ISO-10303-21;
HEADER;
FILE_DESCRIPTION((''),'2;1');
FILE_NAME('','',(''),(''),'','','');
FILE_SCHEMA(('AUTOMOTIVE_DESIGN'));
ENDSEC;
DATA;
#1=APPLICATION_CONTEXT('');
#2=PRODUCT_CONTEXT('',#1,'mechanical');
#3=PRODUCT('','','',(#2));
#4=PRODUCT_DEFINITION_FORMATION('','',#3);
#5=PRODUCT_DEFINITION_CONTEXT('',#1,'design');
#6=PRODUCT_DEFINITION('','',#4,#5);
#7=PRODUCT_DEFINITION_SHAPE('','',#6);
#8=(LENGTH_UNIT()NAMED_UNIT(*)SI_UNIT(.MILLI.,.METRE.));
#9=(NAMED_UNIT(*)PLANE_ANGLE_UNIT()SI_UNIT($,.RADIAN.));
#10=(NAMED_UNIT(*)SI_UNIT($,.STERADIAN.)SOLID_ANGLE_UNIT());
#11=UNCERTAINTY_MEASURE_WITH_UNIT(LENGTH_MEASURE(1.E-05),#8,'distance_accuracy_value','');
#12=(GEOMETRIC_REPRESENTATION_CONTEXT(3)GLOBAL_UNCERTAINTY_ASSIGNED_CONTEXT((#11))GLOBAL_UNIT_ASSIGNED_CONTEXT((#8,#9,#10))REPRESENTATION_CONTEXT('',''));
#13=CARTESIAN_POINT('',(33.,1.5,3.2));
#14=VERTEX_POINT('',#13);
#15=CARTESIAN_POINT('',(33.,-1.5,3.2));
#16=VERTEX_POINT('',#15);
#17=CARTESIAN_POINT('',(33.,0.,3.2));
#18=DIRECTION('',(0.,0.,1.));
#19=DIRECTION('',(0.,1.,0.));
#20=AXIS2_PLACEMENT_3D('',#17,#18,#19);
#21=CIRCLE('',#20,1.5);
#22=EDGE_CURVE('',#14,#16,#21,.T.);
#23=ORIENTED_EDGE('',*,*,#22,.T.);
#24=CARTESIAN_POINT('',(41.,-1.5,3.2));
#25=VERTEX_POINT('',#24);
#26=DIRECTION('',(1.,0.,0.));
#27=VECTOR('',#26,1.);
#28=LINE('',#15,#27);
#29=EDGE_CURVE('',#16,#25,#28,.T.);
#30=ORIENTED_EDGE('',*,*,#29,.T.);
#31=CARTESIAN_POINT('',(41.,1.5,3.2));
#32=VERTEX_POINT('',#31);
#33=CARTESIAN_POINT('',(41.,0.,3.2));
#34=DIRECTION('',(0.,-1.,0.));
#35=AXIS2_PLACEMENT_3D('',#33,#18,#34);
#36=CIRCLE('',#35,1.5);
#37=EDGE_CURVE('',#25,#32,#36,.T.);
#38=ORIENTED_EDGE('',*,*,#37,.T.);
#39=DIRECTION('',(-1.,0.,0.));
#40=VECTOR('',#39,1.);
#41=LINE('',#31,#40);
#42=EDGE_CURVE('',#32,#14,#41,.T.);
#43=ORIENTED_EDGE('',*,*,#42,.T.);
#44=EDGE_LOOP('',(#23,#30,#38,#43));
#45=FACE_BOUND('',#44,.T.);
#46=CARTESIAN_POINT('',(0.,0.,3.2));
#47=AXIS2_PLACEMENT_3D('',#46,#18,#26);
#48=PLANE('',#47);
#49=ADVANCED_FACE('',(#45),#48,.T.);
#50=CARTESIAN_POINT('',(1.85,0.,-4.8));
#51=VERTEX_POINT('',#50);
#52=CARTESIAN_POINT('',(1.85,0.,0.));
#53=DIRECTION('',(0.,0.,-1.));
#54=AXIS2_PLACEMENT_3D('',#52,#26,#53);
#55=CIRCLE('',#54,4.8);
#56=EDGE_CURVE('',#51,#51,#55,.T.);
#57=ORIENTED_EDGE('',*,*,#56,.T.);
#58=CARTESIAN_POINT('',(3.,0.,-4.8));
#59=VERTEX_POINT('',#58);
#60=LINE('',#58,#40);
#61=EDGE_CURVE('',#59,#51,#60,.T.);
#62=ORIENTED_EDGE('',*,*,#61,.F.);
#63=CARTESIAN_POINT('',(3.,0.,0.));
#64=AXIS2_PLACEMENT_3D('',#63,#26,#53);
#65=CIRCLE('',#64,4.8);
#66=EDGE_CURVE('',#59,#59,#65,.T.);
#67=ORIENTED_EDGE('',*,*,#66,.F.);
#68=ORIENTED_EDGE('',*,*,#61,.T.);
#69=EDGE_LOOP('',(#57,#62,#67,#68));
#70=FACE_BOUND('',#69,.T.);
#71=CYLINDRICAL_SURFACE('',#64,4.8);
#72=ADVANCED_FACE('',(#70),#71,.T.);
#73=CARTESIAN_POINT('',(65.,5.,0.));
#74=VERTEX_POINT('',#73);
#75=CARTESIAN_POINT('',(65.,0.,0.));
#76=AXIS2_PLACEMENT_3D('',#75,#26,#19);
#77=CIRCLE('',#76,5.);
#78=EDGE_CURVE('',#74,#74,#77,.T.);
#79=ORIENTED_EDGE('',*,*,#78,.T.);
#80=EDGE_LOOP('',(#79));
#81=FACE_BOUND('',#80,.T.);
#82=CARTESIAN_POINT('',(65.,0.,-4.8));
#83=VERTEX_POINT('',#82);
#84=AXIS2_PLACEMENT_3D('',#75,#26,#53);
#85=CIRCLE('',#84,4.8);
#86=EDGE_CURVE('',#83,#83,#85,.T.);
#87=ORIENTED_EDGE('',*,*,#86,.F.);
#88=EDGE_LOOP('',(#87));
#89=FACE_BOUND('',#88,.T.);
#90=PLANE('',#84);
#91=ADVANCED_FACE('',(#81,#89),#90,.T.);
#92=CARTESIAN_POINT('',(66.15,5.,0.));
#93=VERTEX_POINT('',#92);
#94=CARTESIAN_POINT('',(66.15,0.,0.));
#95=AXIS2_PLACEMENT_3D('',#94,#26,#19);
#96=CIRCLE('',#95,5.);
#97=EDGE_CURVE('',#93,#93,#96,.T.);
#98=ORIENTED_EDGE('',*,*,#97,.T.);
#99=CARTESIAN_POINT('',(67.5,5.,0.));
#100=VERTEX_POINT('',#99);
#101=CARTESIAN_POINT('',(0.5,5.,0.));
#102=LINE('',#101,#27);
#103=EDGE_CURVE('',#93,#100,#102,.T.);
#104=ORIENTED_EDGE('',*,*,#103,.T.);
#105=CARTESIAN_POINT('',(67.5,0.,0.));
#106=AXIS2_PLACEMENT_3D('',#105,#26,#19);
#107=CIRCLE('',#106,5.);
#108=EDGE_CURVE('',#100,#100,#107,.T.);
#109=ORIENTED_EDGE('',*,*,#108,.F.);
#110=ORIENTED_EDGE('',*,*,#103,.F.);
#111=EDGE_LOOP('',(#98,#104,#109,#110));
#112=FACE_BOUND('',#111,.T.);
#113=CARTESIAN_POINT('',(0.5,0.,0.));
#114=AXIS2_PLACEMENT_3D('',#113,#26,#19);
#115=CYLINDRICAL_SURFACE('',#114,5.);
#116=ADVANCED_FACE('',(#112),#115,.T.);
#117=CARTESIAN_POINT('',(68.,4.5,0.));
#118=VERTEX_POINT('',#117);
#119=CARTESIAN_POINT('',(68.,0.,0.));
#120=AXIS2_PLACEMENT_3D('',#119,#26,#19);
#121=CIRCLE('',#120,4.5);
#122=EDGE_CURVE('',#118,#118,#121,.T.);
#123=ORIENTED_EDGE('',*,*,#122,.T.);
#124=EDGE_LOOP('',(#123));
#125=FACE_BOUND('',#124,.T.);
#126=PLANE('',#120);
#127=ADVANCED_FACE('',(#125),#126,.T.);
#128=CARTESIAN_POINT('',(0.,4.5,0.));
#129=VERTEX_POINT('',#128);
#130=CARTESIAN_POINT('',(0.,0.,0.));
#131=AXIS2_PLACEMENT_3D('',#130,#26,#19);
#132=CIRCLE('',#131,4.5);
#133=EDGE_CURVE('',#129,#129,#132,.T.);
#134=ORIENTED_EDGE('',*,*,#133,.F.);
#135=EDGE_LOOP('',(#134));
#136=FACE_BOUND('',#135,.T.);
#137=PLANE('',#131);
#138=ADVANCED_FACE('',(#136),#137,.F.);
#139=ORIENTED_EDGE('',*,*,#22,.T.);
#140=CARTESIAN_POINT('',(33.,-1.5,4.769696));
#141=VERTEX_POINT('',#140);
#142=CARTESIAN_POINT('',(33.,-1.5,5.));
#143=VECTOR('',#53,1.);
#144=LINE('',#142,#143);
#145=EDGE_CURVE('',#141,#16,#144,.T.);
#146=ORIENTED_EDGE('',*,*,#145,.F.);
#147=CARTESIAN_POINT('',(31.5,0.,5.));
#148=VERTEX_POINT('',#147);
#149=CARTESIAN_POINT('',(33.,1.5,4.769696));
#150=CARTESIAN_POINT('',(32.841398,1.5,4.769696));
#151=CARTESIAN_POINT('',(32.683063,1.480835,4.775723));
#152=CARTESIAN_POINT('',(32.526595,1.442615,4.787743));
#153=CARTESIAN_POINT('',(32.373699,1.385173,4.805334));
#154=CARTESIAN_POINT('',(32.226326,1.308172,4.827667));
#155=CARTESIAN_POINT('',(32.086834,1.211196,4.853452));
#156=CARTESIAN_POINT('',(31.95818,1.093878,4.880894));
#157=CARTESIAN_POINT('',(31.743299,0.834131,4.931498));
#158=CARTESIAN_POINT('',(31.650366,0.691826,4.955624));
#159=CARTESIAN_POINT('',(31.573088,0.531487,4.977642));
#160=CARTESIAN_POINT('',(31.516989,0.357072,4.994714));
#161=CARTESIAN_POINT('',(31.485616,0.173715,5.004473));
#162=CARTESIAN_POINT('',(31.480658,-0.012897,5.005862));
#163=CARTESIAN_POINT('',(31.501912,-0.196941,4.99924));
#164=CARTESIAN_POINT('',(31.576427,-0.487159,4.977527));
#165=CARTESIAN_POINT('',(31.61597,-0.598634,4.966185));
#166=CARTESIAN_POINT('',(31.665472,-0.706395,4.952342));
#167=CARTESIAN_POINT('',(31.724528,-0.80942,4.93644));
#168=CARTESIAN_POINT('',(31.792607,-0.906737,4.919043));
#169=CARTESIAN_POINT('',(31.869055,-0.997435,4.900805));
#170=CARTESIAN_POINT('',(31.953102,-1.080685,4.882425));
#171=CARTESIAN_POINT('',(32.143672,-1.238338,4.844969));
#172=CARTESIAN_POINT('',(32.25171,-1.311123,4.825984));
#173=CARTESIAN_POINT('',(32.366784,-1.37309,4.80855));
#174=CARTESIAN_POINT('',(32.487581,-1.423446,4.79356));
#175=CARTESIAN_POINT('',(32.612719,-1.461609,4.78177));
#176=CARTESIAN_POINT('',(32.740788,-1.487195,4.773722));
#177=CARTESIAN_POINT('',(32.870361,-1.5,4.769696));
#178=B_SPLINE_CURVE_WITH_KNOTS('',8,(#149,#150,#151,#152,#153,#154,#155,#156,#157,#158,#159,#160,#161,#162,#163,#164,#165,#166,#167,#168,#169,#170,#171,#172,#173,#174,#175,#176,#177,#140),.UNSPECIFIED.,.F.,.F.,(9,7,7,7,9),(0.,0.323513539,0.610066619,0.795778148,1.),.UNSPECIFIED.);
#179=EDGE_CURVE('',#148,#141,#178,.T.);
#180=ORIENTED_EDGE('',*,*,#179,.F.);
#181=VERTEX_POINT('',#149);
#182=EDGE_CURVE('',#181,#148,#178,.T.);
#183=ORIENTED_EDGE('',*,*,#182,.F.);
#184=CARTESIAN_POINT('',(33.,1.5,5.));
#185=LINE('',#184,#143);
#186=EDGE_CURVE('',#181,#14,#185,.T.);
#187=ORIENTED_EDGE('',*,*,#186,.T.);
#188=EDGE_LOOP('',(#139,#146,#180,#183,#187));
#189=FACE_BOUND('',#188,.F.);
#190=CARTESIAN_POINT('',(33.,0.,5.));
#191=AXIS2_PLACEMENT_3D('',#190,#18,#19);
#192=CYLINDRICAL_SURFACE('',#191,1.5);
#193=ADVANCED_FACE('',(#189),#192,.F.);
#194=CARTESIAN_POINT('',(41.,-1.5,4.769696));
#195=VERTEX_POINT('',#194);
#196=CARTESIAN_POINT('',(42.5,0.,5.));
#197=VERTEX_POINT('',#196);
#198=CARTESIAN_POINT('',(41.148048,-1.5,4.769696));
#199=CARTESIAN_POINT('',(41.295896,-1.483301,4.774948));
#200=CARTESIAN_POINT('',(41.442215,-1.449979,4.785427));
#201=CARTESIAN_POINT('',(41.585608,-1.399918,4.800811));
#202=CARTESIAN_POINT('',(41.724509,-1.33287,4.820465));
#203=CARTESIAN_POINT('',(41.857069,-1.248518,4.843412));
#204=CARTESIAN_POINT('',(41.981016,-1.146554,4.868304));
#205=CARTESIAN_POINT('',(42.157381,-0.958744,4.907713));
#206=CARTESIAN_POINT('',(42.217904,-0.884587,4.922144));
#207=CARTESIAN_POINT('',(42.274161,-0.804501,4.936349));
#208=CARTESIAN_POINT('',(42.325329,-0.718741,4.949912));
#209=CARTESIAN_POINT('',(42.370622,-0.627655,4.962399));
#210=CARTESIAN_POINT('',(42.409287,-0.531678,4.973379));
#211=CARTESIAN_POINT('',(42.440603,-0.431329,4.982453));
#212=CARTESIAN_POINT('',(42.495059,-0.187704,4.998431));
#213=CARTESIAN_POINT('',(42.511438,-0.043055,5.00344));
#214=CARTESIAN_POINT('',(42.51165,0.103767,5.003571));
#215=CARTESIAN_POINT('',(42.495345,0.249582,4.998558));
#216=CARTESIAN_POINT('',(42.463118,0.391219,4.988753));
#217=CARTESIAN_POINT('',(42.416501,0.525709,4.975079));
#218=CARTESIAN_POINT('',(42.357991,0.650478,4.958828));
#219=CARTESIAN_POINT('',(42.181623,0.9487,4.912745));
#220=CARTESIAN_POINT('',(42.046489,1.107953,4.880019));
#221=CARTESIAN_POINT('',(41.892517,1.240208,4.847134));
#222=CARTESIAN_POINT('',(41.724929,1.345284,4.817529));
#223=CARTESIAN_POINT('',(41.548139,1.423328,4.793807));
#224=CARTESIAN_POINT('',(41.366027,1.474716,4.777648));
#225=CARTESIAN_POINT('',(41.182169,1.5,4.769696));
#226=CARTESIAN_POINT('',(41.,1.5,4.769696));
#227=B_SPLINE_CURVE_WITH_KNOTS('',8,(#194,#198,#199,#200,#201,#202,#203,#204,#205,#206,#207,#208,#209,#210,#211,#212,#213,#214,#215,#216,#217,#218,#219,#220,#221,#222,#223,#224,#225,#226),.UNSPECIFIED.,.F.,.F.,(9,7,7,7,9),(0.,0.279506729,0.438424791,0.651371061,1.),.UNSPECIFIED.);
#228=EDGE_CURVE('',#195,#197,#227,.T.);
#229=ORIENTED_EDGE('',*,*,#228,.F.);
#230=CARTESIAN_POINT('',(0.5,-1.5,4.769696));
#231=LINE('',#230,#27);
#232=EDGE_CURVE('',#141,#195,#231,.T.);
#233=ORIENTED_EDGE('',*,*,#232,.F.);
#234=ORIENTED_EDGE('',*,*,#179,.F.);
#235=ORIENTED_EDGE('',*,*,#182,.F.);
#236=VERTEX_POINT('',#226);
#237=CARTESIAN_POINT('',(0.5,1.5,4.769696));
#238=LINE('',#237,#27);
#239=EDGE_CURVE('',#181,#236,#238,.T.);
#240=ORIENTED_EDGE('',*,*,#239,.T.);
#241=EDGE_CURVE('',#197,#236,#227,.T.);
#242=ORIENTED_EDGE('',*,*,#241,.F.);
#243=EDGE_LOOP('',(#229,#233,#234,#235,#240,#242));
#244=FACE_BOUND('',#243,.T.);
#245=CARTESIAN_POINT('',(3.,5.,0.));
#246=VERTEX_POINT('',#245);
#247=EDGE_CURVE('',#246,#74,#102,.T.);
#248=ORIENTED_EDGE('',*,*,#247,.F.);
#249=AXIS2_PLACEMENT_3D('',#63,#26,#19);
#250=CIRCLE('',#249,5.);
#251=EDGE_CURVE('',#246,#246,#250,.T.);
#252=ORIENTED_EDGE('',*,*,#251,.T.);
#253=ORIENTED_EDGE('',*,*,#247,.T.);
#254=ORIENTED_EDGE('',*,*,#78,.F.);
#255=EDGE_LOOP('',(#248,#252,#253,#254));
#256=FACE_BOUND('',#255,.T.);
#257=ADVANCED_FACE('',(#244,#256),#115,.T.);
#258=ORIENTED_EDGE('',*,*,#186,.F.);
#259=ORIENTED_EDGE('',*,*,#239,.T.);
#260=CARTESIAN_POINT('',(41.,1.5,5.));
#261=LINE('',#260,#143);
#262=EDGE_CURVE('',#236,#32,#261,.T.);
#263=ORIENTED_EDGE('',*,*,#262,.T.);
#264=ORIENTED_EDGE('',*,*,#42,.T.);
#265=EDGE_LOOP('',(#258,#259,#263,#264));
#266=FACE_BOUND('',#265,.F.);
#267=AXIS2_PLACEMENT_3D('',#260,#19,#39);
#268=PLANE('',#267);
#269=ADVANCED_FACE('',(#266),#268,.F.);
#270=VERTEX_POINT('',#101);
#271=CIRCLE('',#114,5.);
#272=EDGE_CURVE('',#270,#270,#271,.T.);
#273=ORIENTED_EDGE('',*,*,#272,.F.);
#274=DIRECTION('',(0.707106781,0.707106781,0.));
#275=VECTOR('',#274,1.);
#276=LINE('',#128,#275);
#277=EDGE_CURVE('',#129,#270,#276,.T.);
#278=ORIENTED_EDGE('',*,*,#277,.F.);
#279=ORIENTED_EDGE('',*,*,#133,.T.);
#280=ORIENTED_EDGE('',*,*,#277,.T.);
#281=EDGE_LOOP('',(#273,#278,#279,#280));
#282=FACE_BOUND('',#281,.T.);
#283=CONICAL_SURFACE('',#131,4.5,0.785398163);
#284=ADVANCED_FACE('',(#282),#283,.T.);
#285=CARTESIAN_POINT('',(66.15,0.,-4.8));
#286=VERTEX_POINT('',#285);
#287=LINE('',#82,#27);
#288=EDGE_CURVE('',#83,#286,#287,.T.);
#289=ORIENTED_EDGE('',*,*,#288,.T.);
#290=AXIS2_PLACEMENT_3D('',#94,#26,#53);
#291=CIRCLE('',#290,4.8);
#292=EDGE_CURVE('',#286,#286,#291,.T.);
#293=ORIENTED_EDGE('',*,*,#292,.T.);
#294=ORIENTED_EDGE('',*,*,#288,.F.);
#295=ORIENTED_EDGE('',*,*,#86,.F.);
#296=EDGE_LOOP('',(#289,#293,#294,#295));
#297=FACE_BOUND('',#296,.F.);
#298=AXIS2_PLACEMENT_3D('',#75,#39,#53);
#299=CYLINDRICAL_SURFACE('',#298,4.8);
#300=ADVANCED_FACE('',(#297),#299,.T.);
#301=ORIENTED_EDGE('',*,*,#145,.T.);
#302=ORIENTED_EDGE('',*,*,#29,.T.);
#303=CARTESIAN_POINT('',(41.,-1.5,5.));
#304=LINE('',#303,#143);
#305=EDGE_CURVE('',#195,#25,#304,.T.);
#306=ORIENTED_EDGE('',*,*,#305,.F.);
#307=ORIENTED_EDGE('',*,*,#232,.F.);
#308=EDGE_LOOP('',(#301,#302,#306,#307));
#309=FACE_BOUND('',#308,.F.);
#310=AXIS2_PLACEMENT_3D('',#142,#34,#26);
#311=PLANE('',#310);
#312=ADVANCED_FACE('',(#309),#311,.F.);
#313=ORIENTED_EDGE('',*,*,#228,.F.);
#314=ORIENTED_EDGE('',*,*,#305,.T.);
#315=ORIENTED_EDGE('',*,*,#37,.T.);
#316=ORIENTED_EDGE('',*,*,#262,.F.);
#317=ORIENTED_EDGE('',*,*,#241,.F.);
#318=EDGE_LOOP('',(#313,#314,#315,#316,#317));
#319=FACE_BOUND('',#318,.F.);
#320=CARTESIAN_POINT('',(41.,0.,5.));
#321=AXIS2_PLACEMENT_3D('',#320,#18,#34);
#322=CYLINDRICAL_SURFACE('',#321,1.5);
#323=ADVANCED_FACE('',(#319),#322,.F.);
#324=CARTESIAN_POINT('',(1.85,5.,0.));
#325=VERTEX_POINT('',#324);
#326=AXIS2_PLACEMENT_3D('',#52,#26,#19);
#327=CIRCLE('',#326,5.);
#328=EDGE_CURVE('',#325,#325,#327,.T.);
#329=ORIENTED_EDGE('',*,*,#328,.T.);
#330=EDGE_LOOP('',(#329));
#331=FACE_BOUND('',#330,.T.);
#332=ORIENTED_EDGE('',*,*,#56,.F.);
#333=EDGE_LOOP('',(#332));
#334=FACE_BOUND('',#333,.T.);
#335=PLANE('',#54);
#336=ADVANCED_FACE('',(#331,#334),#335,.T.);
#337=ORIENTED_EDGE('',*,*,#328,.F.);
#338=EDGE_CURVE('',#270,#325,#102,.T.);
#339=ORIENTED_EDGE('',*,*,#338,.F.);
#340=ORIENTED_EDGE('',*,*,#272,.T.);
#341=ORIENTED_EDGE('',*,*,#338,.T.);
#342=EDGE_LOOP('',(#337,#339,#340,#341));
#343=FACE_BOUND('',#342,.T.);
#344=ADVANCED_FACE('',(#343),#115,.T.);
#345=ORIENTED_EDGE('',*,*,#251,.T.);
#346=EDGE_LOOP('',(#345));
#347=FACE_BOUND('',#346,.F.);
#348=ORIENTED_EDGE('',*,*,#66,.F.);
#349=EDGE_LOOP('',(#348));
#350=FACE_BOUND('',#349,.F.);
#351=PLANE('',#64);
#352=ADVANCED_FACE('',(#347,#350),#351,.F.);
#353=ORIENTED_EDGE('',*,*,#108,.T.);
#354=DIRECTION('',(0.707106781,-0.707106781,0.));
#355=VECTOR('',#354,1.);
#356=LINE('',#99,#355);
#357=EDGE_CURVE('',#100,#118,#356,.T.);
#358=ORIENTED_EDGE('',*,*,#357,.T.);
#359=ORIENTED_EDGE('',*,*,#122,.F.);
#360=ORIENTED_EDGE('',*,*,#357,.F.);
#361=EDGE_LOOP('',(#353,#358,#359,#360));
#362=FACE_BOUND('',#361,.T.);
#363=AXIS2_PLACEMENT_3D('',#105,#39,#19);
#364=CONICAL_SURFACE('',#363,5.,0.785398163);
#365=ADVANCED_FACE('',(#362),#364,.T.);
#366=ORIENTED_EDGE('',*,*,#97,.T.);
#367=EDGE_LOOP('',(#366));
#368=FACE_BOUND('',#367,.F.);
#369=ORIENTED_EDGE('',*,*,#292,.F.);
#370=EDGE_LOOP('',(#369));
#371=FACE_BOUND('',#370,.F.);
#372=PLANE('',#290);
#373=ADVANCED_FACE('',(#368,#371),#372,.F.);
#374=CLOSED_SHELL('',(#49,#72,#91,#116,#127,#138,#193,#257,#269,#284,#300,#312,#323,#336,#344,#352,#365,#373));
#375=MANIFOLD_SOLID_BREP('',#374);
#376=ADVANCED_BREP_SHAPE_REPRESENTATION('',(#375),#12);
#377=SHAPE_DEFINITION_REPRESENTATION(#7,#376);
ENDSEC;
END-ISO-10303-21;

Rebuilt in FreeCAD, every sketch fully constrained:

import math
import FreeCAD as App
import Part
import Sketcher
from FreeCAD import Vector


def add_polygon(sketch, points):
    """Adds a closed chain of lines whose ends are joined by coincident constraints."""
    first, n = sketch.GeometryCount, len(points)
    for a, b in zip(points, points[1:] + points[:1]):
        sketch.addGeometry(Part.LineSegment(App.Vector(*a, 0), App.Vector(*b, 0)), False)
    for i in range(n):
        sketch.addConstraint(Sketcher.Constraint("Coincident", first + i, 2, first + (i + 1) % n, 1))

doc = App.newDocument("Part")
body = doc.addObject("PartDesign::Body", "Body")

sketch1 = body.newObject("Sketcher::SketchObject", "Sketch")
sketch1.AttachmentSupport = (doc.getObject("XY_Plane"), [""])
sketch1.MapMode = "FlatFace"
add_polygon(sketch1, [(0, 0), (68, 0), (68, 4.5), (67.5, 5), (0.5, 5), (0, 4.5)])
sketch1.addConstraint(Sketcher.Constraint("Horizontal", 0))
sketch1.addConstraint(Sketcher.Constraint("Vertical", 1))
sketch1.addConstraint(Sketcher.Constraint("Horizontal", 3))
sketch1.addConstraint(Sketcher.Constraint("Vertical", 5))
sketch1.addConstraint(Sketcher.Constraint("Coincident", 5, 2, -1, 1))
sketch1.addConstraint(Sketcher.Constraint("Perpendicular", 2, 4))
sketch1.addConstraint(Sketcher.Constraint("Horizontal", 1, 2, 4, 2))
sketch1.addConstraint(Sketcher.Constraint("Equal", 2, 4))
sketch1.addConstraint(Sketcher.Constraint("DistanceX", 0, 1, 0, 2, 68.0))
sketch1.addConstraint(Sketcher.Constraint("DistanceX", 3, 2, 3, 1, 67.0))
sketch1.addConstraint(Sketcher.Constraint("DistanceY", 1, 1, 1, 2, 4.5))
revolution = body.newObject("PartDesign::Revolution", "Revolution")
revolution.Profile = sketch1
revolution.ReferenceAxis = (sketch1, ["H_Axis"])
revolution.Angle = 360

sketch2 = body.newObject("Sketcher::SketchObject", "Sketch001")
sketch2.AttachmentSupport = (doc.getObject("XY_Plane"), [""])
sketch2.MapMode = "FlatFace"
sketch2.AttachmentOffset = App.Placement(Vector(0, 0, 5), App.Rotation())
sketch2.addGeometry(Part.LineSegment(Vector(41, 1.5, 0), Vector(33, 1.5, 0)), False)
sketch2.addGeometry(Part.ArcOfCircle(Part.Circle(Vector(33, 0, 0), Vector(0, 0, 1), 1.5), math.radians(90), math.radians(270)), False)
sketch2.addGeometry(Part.LineSegment(Vector(33, -1.5, 0), Vector(41, -1.5, 0)), False)
sketch2.addGeometry(Part.ArcOfCircle(Part.Circle(Vector(41, 0, 0), Vector(0, 0, 1), 1.5), math.radians(-90), math.radians(90)), False)
sketch2.addConstraint(Sketcher.Constraint("Tangent", 0, 2, 1, 1))
sketch2.addConstraint(Sketcher.Constraint("Tangent", 1, 2, 2, 1))
sketch2.addConstraint(Sketcher.Constraint("Tangent", 2, 2, 3, 1))
sketch2.addConstraint(Sketcher.Constraint("Tangent", 3, 2, 0, 1))
sketch2.addConstraint(Sketcher.Constraint("Horizontal", 0))
sketch2.addConstraint(Sketcher.Constraint("Horizontal", 2))
sketch2.addConstraint(Sketcher.Constraint("PointOnObject", 1, 3, -1))
sketch2.addConstraint(Sketcher.Constraint("Radius", 1, 1.5))
sketch2.addConstraint(Sketcher.Constraint("DistanceX", 0, 2, 0, 1, 8.0))
sketch2.addConstraint(Sketcher.Constraint("DistanceX", -1, 1, 1, 3, 33.0))
pocket1 = body.newObject("PartDesign::Pocket", "Pocket")
pocket1.Profile = sketch2
pocket1.Length = 1.8

sketch3 = body.newObject("Sketcher::SketchObject", "Sketch002")
sketch3.AttachmentSupport = (doc.getObject("YZ_Plane"), [""])
sketch3.MapMode = "FlatFace"
sketch3.AttachmentOffset = App.Placement(Vector(0, 0, 3), App.Rotation())
sketch3.addGeometry(Part.Circle(Vector(0, 0, 0), Vector(0, 0, 1), 10), False)
sketch3.addGeometry(Part.Circle(Vector(0, 0, 0), Vector(0, 0, 1), 4.8), False)
sketch3.addConstraint(Sketcher.Constraint("Coincident", 0, 3, -1, 1))
sketch3.addConstraint(Sketcher.Constraint("Coincident", 1, 3, -1, 1))
sketch3.addConstraint(Sketcher.Constraint("Diameter", 0, 20.0))
sketch3.addConstraint(Sketcher.Constraint("Diameter", 1, 9.6))
pocket2 = body.newObject("PartDesign::Pocket", "Pocket001")
pocket2.Profile = sketch3
pocket2.Length = 1.15

sketch4 = body.newObject("Sketcher::SketchObject", "Sketch003")
sketch4.AttachmentSupport = (doc.getObject("YZ_Plane"), [""])
sketch4.MapMode = "FlatFace"
sketch4.AttachmentOffset = App.Placement(Vector(0, 0, 65), App.Rotation())
sketch4.addGeometry(Part.Circle(Vector(0, 0, 0), Vector(0, 0, 1), 10), False)
sketch4.addGeometry(Part.Circle(Vector(0, 0, 0), Vector(0, 0, 1), 4.8), False)
sketch4.addConstraint(Sketcher.Constraint("Coincident", 0, 3, -1, 1))
sketch4.addConstraint(Sketcher.Constraint("Coincident", 1, 3, -1, 1))
sketch4.addConstraint(Sketcher.Constraint("Diameter", 0, 20.0))
sketch4.addConstraint(Sketcher.Constraint("Diameter", 1, 9.6))
pocket3 = body.newObject("PartDesign::Pocket", "Pocket002")
pocket3.Profile = sketch4
pocket3.Length = 1.15
pocket3.Reversed = True

doc.recompute()
